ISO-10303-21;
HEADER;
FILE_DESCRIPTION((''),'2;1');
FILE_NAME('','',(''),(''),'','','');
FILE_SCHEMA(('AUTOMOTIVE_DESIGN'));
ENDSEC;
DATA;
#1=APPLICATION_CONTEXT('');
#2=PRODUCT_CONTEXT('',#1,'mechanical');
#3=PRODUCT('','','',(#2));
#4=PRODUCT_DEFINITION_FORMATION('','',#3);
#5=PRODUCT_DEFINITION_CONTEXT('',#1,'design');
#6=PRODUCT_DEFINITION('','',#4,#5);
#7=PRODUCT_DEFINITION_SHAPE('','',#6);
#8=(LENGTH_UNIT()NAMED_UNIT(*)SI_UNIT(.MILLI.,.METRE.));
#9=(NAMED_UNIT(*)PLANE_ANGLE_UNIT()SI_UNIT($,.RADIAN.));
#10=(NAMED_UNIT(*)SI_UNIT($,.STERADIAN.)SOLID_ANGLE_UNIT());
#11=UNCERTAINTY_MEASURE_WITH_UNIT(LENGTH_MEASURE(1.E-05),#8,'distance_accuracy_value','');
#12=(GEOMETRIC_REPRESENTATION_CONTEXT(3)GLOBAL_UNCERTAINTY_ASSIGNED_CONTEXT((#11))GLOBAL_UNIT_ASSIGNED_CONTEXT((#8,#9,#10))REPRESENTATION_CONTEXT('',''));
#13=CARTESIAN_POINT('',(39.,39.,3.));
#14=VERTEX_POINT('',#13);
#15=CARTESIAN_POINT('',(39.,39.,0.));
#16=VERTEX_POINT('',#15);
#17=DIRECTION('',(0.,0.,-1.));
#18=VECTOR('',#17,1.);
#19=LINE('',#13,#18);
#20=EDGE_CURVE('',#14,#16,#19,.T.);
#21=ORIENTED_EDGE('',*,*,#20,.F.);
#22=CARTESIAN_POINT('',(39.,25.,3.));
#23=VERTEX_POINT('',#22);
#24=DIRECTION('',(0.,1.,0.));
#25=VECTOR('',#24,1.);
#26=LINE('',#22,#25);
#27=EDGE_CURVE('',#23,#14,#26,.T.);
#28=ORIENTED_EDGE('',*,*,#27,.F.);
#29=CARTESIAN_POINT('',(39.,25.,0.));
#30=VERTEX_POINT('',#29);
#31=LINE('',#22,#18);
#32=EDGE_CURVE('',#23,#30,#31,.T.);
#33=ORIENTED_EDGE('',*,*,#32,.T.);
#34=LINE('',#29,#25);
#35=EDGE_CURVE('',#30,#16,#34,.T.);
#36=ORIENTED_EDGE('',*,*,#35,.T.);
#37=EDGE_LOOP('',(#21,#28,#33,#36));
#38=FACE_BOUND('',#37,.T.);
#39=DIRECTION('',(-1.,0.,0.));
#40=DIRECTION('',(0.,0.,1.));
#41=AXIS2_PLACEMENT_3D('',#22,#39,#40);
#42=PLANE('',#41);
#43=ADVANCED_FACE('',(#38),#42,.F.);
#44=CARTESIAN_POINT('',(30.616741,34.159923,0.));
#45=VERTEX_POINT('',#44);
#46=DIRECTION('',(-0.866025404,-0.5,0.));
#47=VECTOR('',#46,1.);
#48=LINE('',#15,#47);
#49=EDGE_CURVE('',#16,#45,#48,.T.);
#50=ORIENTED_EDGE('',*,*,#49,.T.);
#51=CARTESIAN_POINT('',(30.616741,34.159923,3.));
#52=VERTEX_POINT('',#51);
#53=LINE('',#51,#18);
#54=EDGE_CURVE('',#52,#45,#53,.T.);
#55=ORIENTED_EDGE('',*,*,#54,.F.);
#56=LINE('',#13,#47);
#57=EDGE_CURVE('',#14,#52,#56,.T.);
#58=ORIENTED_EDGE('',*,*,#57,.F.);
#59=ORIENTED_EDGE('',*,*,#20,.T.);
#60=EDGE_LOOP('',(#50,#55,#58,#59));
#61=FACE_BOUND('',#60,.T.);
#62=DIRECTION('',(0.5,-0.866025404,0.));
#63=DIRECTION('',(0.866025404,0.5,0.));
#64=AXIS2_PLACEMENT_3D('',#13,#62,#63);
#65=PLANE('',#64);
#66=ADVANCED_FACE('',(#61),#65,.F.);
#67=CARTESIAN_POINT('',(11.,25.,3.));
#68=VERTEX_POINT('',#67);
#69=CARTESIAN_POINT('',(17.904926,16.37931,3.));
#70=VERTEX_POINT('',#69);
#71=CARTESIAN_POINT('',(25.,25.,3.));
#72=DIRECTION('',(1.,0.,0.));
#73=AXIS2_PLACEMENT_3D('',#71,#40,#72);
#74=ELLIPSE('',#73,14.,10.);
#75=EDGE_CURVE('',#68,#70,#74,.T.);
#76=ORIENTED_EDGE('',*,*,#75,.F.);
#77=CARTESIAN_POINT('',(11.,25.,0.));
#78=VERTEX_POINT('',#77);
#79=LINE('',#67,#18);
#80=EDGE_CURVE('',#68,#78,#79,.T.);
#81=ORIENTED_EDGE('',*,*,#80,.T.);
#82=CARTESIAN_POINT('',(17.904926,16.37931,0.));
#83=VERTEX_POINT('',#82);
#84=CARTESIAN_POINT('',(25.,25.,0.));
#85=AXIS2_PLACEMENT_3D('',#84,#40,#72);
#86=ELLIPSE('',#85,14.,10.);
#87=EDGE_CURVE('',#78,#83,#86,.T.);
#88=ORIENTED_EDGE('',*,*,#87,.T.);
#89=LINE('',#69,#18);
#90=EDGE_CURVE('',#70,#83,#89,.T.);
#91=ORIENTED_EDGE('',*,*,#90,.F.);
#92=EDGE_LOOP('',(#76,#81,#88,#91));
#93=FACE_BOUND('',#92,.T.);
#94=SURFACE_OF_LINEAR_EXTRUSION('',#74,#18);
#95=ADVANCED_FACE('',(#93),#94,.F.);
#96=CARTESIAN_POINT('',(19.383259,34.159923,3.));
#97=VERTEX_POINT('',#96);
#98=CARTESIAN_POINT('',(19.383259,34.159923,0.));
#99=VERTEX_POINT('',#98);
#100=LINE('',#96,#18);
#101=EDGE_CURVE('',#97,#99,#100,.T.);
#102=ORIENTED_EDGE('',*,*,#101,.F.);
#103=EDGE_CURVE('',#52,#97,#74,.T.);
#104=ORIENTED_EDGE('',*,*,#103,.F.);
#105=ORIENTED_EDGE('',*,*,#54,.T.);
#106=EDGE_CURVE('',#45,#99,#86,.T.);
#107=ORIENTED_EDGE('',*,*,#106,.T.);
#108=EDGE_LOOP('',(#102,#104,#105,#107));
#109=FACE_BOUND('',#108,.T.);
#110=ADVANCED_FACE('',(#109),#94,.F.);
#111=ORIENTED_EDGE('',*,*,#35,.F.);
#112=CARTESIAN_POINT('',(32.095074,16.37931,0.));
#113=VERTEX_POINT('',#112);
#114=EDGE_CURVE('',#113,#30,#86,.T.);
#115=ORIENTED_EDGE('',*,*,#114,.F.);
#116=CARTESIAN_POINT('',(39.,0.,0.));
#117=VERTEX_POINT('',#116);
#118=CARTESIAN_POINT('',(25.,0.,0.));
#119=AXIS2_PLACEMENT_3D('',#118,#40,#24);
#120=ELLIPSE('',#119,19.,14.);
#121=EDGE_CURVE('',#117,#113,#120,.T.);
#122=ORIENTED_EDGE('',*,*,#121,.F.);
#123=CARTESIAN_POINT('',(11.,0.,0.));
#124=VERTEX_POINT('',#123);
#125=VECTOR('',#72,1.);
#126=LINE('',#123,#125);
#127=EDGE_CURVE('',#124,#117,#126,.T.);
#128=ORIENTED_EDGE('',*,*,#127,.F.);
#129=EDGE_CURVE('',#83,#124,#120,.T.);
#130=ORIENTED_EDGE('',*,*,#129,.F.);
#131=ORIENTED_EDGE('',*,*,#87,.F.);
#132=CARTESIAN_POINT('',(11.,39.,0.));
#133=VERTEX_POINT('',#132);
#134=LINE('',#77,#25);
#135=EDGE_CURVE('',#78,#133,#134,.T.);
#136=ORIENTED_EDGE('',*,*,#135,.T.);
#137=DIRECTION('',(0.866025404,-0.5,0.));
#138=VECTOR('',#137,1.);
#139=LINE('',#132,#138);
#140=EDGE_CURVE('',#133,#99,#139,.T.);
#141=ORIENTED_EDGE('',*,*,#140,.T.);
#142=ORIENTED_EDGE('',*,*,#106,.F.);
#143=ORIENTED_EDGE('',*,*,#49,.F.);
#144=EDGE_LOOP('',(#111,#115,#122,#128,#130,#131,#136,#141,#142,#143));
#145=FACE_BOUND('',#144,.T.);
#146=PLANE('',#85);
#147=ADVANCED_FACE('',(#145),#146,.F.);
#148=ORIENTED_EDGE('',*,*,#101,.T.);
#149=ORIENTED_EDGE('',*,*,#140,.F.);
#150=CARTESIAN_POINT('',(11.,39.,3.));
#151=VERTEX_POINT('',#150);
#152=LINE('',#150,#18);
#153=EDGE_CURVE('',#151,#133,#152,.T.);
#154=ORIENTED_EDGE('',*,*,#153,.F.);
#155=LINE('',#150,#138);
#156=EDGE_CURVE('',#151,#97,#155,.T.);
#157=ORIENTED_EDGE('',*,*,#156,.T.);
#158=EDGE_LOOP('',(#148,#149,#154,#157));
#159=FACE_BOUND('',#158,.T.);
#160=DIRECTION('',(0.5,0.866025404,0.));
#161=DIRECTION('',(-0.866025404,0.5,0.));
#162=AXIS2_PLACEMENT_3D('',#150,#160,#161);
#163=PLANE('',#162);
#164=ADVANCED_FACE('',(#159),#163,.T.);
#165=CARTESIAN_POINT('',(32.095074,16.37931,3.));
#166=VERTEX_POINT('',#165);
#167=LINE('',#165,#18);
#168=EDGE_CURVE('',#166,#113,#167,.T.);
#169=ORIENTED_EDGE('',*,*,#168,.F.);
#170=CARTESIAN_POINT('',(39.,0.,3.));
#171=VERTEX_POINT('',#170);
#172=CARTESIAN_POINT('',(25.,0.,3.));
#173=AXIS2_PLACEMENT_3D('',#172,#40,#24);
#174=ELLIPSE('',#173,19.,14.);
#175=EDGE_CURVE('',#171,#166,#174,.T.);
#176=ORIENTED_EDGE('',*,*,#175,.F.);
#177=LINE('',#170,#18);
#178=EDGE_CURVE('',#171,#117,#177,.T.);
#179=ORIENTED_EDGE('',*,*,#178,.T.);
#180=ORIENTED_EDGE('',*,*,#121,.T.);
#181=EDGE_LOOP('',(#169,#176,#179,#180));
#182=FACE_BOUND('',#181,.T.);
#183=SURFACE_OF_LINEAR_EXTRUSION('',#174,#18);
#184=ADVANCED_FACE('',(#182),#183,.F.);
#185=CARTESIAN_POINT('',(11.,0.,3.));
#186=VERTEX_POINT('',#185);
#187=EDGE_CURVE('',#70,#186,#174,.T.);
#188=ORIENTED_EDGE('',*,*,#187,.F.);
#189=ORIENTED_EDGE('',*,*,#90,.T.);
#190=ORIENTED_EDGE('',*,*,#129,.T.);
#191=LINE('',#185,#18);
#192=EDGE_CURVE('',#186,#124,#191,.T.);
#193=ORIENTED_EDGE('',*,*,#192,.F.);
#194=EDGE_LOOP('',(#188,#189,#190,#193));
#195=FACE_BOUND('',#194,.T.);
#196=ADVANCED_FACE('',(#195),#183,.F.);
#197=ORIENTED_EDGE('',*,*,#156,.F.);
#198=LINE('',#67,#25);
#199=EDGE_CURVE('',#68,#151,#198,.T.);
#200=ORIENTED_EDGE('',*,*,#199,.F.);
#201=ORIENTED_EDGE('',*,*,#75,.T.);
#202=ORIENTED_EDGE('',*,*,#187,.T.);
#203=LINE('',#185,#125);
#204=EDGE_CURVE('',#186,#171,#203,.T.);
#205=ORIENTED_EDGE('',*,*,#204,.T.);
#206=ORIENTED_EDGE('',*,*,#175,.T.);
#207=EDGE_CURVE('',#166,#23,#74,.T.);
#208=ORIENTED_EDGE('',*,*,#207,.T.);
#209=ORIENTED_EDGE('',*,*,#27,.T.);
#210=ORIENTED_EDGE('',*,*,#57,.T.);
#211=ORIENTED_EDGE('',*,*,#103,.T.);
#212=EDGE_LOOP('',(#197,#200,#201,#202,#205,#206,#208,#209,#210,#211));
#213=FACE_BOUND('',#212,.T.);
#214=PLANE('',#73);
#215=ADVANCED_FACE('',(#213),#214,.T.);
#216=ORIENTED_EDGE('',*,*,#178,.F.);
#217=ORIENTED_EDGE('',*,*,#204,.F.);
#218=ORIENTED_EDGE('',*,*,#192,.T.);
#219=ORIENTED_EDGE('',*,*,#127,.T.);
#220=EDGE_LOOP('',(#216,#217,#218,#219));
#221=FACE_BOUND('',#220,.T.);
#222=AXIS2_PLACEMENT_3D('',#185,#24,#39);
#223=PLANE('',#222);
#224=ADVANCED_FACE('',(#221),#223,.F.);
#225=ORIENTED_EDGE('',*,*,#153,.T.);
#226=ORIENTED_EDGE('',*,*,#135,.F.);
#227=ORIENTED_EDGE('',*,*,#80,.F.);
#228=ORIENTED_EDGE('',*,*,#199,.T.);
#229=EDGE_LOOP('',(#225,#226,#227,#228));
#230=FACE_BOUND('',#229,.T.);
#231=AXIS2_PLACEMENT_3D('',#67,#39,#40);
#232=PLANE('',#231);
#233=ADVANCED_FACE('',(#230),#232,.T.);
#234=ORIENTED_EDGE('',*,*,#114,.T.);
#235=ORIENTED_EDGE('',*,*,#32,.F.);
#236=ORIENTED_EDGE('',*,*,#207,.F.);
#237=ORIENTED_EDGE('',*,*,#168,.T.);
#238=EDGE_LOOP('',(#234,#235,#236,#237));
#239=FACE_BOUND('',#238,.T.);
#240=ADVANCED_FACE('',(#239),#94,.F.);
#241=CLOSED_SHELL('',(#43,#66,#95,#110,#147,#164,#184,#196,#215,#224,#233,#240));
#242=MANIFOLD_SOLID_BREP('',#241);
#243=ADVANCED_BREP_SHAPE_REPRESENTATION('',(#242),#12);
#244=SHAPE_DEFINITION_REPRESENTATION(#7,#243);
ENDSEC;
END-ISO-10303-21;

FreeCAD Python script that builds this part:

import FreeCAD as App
import Part
import Sketcher

V = App.Vector
Q = App.Units.Quantity

doc = App.newDocument("Part")
body = doc.addObject("PartDesign::Body", "Body")

sketch1 = body.newObject("Sketcher::SketchObject", "Sketch")
sketch1.AttachmentSupport = (doc.getObject("XY_Plane"), [""])
sketch1.MapMode = "FlatFace"
sketch1.addGeometry(Part.LineSegment(V(11, 39, 0), V(11, 25, 0)), False)
sketch1.addGeometry(Part.BSplineCurve([V(11, 25, 0), V(11, 19.278775, 0), V(17.904926, 16.37931, 0)], [3, 3], [0, 1.039338089], False, 2, [1, 0.867983577, 1], False), False)
sketch1.addGeometry(Part.BSplineCurve([V(17.904926, 16.37931, 0), V(11, 10.870327, 0), V(11, 0, 0)], [3, 3], [0.531458238, 1.570796327], False, 2, [1, 0.867983577, 1], False), False)
sketch1.addGeometry(Part.LineSegment(V(11, 0, 0), V(39, 0, 0)), False)
sketch1.addGeometry(Part.BSplineCurve([V(39, 0, 0), V(39, 10.870327, 0), V(32.095074, 16.37931, 0)], [3, 3], [4.71238898, 5.751727069], False, 2, [1, 0.867983577, 1], False), False)
sketch1.addGeometry(Part.BSplineCurve([V(32.095074, 16.37931, 0), V(39, 19.278775, 0), V(39, 25, 0)], [3, 3], [2.102254565, 3.141592654], False, 2, [1, 0.867983577, 1], False), False)
sketch1.addGeometry(Part.LineSegment(V(39, 25, 0), V(39, 39, 0)), False)
sketch1.addGeometry(Part.LineSegment(V(39, 39, 0), V(30.616741, 34.159923, 0)), False)
sketch1.addGeometry(Part.BSplineCurve([V(30.616741, 34.159923, 0), V(25, 35.917122, 0), V(19.383259, 34.159923, 0)], [3, 3], [4.299567044, 5.125210917], False, 2, [1, 0.915992323, 1], False), False)
sketch1.addGeometry(Part.LineSegment(V(19.383259, 34.159923, 0), V(11, 39, 0)), False)
sketch1.addConstraint(Sketcher.Constraint("Block", 1))
sketch1.addConstraint(Sketcher.Constraint("Block", 2))
sketch1.addConstraint(Sketcher.Constraint("Block", 4))
sketch1.addConstraint(Sketcher.Constraint("Block", 5))
sketch1.addConstraint(Sketcher.Constraint("Block", 8))
sketch1.addConstraint(Sketcher.Constraint("Coincident", 0, 2, 1, 1))
sketch1.addConstraint(Sketcher.Constraint("Coincident", 2, 2, 3, 1))
sketch1.addConstraint(Sketcher.Constraint("Coincident", 3, 2, 4, 1))
sketch1.addConstraint(Sketcher.Constraint("Coincident", 5, 2, 6, 1))
sketch1.addConstraint(Sketcher.Constraint("Coincident", 6, 2, 7, 1))
sketch1.addConstraint(Sketcher.Constraint("Coincident", 7, 2, 8, 1))
sketch1.addConstraint(Sketcher.Constraint("Coincident", 8, 2, 9, 1))
sketch1.addConstraint(Sketcher.Constraint("Coincident", 9, 2, 0, 1))
sketch1.addConstraint(Sketcher.Constraint("Vertical", 0))
sketch1.addConstraint(Sketcher.Constraint("Vertical", 6))
sketch1.addConstraint(Sketcher.Constraint("Horizontal", 6, 2, 9, 2))
sketch1.addConstraint(Sketcher.Constraint("DistanceY", 0, 2, 0, 1, Q("14 mm")))
pad1 = body.newObject("PartDesign::Pad", "Pad")
pad1.Profile = sketch1
pad1.Length = 3

doc.recompute()
